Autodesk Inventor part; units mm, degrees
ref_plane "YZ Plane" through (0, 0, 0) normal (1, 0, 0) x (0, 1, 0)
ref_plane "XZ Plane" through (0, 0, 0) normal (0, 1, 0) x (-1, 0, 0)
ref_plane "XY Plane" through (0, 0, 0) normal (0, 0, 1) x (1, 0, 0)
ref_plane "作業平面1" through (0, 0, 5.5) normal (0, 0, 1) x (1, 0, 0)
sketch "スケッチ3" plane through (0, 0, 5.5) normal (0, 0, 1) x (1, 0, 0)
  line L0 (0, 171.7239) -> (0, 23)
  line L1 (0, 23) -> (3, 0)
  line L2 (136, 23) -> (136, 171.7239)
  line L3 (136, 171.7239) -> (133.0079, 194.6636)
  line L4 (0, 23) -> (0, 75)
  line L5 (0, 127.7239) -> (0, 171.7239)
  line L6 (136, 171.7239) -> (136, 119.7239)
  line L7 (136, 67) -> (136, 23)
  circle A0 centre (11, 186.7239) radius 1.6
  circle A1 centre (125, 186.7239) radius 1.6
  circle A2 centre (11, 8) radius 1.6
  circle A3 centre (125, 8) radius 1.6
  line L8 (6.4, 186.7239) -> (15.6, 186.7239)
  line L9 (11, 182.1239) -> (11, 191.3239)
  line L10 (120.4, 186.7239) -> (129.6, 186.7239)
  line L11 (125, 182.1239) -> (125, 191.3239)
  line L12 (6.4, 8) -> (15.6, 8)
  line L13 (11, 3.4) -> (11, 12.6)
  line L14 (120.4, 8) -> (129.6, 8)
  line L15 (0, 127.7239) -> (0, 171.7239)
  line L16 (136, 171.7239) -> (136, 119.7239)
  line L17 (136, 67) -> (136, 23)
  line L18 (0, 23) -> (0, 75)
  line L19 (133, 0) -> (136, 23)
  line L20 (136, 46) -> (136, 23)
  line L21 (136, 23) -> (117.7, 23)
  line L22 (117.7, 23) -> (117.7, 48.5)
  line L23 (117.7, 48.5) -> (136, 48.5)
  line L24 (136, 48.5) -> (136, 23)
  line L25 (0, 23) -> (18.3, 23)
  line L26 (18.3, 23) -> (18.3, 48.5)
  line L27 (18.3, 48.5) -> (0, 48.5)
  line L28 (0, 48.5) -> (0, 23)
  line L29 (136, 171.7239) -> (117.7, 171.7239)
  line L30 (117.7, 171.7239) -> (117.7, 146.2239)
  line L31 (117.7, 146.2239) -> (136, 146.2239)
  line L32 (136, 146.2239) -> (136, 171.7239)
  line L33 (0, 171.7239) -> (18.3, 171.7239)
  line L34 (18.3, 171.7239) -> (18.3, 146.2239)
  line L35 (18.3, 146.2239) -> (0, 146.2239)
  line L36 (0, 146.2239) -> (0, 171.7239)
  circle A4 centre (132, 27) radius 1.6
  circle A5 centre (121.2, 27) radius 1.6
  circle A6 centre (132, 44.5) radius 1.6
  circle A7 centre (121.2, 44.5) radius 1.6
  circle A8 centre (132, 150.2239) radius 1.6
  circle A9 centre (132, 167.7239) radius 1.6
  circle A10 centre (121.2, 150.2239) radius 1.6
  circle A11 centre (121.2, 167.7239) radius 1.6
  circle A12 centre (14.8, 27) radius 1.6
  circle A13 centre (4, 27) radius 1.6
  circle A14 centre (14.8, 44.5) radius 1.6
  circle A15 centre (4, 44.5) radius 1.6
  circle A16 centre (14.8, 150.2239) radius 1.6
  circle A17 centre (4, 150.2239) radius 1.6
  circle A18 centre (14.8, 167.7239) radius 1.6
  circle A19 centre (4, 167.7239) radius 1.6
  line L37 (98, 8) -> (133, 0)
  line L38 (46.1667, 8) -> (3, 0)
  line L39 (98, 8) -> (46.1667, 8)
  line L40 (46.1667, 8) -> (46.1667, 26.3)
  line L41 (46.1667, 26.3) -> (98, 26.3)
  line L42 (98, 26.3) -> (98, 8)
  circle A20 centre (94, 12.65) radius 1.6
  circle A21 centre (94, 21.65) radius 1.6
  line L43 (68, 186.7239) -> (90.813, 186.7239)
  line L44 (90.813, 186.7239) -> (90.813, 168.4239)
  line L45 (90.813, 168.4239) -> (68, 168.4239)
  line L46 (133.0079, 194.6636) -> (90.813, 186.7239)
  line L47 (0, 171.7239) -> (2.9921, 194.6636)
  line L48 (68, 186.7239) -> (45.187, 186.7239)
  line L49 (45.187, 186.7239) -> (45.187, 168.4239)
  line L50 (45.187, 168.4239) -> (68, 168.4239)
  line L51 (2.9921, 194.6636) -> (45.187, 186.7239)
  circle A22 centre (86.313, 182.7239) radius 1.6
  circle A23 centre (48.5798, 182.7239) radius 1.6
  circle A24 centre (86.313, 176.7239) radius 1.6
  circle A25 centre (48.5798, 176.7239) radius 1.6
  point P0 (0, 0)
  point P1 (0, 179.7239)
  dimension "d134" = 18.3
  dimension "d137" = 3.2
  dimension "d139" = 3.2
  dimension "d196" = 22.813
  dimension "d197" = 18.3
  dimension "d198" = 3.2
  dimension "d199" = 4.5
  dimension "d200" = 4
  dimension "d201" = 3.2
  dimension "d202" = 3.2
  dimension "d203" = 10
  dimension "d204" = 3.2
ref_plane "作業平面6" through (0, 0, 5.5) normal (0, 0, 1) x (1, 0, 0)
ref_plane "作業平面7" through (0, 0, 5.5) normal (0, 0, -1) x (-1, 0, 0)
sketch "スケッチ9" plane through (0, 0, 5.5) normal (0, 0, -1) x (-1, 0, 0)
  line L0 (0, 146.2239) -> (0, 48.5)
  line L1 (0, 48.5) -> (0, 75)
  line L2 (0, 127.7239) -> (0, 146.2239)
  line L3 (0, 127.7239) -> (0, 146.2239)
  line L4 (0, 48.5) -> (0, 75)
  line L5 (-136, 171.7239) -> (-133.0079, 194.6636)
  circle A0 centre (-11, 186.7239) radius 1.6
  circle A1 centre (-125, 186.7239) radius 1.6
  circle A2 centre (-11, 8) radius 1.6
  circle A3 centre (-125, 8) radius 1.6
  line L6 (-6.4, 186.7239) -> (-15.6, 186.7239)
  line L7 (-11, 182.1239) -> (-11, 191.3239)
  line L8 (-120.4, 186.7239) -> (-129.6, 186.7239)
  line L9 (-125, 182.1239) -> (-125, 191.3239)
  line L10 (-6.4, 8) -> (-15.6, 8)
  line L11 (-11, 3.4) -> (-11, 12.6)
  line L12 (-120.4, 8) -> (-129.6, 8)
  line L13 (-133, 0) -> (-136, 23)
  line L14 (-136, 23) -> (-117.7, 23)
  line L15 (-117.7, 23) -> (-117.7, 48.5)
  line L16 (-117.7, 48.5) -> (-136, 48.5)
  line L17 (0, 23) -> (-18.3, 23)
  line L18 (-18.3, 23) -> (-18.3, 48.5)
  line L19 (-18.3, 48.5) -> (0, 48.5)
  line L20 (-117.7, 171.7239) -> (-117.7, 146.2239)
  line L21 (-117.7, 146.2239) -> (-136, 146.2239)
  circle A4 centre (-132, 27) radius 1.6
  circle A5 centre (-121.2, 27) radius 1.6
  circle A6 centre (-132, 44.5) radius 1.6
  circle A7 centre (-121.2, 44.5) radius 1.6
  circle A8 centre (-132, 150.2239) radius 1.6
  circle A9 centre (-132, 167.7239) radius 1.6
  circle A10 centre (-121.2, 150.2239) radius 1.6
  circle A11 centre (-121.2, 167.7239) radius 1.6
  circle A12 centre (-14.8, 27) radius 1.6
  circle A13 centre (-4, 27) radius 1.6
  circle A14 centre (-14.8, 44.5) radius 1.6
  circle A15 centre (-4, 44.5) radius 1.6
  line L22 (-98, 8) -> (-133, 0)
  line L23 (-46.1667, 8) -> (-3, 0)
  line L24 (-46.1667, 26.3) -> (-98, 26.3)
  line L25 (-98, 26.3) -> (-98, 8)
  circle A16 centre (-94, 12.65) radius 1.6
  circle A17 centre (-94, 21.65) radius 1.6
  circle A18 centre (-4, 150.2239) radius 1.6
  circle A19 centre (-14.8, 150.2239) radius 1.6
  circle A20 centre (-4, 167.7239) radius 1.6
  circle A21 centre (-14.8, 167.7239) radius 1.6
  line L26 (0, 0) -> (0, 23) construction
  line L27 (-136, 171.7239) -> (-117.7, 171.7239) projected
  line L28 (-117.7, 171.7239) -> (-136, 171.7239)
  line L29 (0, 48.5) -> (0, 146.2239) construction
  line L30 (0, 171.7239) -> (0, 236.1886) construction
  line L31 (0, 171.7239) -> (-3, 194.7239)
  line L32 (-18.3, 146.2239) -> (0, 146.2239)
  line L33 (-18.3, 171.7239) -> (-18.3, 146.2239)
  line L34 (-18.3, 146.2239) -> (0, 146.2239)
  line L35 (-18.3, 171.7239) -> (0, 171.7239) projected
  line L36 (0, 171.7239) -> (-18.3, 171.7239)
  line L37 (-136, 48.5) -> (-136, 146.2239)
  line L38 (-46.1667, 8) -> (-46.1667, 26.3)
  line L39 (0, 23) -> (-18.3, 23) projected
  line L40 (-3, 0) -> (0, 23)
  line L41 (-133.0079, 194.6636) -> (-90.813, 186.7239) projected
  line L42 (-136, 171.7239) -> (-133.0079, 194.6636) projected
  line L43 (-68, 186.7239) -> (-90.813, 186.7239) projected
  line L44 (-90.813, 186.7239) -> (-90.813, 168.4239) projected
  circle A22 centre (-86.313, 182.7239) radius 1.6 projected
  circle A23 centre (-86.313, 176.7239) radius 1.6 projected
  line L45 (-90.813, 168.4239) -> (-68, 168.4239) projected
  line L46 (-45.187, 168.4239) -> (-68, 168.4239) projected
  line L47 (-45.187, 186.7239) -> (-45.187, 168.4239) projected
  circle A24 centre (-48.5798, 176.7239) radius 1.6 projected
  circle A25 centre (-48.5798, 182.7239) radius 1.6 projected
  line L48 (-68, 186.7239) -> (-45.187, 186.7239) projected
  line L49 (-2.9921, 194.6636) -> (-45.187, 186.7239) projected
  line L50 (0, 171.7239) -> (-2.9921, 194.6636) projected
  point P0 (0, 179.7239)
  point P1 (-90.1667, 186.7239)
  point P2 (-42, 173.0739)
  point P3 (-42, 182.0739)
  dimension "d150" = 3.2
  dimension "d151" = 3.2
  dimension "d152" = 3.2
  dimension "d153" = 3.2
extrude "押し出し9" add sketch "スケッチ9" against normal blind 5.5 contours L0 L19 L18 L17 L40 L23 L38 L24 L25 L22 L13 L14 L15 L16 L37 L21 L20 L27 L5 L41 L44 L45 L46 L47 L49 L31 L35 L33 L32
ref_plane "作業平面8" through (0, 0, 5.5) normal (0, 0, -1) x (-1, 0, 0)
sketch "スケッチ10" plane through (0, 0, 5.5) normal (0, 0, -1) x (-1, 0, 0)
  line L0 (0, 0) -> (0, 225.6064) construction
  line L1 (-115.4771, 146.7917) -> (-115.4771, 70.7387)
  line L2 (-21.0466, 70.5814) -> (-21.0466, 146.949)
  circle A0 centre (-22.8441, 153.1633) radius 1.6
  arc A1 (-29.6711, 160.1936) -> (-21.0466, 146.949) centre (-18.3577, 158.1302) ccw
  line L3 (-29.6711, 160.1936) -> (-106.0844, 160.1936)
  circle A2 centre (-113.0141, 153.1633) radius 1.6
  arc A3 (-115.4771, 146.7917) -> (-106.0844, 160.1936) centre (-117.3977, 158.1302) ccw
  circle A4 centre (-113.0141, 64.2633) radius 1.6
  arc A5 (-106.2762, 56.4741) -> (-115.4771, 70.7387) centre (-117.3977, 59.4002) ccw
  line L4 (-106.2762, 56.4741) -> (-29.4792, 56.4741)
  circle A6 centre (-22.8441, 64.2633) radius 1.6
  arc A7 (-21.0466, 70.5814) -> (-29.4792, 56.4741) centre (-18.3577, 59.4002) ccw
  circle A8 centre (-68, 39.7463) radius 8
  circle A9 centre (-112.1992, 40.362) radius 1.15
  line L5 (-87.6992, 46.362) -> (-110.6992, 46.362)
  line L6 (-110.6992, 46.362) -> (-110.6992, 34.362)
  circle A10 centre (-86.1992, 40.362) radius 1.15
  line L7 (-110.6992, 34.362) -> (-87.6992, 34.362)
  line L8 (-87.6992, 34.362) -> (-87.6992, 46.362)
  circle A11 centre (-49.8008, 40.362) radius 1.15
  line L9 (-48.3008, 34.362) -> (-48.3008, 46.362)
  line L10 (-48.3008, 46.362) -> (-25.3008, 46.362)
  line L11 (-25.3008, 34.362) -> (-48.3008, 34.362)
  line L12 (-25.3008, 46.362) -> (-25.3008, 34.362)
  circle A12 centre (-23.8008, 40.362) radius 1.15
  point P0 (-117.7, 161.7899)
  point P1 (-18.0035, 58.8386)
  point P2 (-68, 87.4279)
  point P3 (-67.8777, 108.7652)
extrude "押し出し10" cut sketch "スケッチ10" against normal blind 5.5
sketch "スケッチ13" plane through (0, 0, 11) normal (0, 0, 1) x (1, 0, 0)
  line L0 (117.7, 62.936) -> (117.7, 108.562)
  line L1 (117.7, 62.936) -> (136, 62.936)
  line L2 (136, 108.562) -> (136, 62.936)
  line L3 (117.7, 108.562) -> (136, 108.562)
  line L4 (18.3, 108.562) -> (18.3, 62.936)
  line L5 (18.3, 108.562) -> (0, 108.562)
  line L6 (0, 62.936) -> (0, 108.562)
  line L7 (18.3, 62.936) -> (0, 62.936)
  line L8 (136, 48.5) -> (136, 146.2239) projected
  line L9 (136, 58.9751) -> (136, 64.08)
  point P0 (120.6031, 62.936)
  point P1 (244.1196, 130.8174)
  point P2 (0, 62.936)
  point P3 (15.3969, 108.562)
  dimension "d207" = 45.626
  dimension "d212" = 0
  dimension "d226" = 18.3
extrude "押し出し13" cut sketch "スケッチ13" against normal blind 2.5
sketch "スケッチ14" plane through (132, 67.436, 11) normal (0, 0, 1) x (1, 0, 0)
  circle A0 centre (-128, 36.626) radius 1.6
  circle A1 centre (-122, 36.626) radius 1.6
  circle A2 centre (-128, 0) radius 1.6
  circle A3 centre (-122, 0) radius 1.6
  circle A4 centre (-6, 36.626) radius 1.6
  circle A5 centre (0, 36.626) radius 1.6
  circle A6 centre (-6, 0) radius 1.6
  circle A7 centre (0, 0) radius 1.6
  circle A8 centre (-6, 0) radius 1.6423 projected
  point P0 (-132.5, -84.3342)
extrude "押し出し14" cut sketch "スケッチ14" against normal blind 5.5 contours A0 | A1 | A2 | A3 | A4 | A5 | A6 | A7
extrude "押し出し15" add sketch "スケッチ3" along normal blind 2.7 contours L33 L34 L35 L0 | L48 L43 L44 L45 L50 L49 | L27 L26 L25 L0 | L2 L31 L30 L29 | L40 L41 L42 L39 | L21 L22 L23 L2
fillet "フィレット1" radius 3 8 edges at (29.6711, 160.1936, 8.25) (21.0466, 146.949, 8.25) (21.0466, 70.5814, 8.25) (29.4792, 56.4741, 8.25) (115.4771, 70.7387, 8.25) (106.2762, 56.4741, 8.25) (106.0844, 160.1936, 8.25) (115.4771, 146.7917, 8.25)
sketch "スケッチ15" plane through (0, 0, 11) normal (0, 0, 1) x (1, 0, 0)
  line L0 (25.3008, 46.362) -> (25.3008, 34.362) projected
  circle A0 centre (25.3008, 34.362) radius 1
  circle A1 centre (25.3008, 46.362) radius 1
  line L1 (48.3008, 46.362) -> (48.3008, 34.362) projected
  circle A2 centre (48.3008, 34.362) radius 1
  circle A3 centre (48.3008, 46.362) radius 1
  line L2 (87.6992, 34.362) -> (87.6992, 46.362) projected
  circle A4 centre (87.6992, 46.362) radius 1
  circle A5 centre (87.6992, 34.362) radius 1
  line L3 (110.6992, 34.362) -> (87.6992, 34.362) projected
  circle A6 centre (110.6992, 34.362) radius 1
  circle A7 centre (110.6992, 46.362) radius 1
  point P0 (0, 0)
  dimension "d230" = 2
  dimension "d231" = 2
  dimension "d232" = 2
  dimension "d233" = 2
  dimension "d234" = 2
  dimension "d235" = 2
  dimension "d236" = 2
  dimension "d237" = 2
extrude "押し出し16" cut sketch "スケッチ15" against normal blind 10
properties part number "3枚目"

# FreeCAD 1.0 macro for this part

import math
import FreeCAD as App
import Part
import Sketcher

V = App.Vector
Q = App.Units.Quantity


def edges_at(feature, points):
    """Names of the edges that pass closest to the given points."""
    edges = feature.Shape.Edges
    near = lambda p: min(range(len(edges)), key=lambda i: edges[i].distToShape(Part.Vertex(*p))[0])
    return sorted({f"Edge{near(p) + 1}" for p in points})

doc = App.newDocument("Part")
body = doc.addObject("PartDesign::Body", "Body")

# Sketch on XY plane
sketch1 = body.newObject("Sketcher::SketchObject", "Sketch")
sketch1.AttachmentSupport = (doc.getObject("XY_Plane"), [""])
sketch1.MapMode = "FlatFace"
sketch1.AttachmentOffset = App.Placement(V(0, 0, 5.5), App.Rotation())
sketch1.addGeometry([
    Part.LineSegment(V(0, 48.5, 0), V(0, 146.2, 0)),  # 0
    Part.LineSegment(V(0, 146.2, 0), V(18.3, 146.2, 0)),  # 1
    Part.LineSegment(V(18.3, 146.2, 0), V(18.3, 171.7, 0)),  # 2
    Part.LineSegment(V(18.3, 171.7, 0), V(0, 171.7, 0)),  # 3
    Part.LineSegment(V(0, 171.7, 0), V(3, 194.7, 0)),  # 4
    Part.LineSegment(V(3, 194.7, 0), V(45.2, 186.7, 0)),  # 5
    Part.LineSegment(V(45.2, 186.7, 0), V(45.2, 168.4, 0)),  # 6
    Part.LineSegment(V(45.2, 168.4, 0), V(90.8, 168.4, 0)),  # 7
    Part.LineSegment(V(90.8, 168.4, 0), V(90.8, 186.7, 0)),  # 8
    Part.LineSegment(V(90.8, 186.7, 0), V(133, 194.7, 0)),  # 9
    Part.LineSegment(V(133, 194.7, 0), V(136, 171.7, 0)),  # 10
    Part.LineSegment(V(136, 171.7, 0), V(117.7, 171.7, 0)),  # 11
    Part.LineSegment(V(117.7, 171.7, 0), V(117.7, 146.2, 0)),  # 12
    Part.LineSegment(V(117.7, 146.2, 0), V(136, 146.2, 0)),  # 13
    Part.LineSegment(V(136, 146.2, 0), V(136, 48.5, 0)),  # 14
    Part.LineSegment(V(136, 48.5, 0), V(117.7, 48.5, 0)),  # 15
    Part.LineSegment(V(117.7, 48.5, 0), V(117.7, 23, 0)),  # 16
    Part.LineSegment(V(117.7, 23, 0), V(136, 23, 0)),  # 17
    Part.LineSegment(V(136, 23, 0), V(133, 0, 0)),  # 18
    Part.LineSegment(V(133, 0, 0), V(98, 8, 0)),  # 19
    Part.LineSegment(V(98, 8, 0), V(98, 26.3, 0)),  # 20
    Part.LineSegment(V(98, 26.3, 0), V(46.2, 26.3, 0)),  # 21
    Part.LineSegment(V(46.2, 26.3, 0), V(46.2, 8, 0)),  # 22
    Part.LineSegment(V(46.2, 8, 0), V(3, 0, 0)),  # 23
    Part.LineSegment(V(3, 0, 0), V(0, 23, 0)),  # 24
    Part.LineSegment(V(0, 23, 0), V(18.3, 23, 0)),  # 25
    Part.LineSegment(V(18.3, 23, 0), V(18.3, 48.5, 0)),  # 26
    Part.LineSegment(V(18.3, 48.5, 0), V(0, 48.5, 0)),  # 27
    Part.Circle(V(125, 8, 0), V(0, 0, 1), 1.6),  # 28
    Part.Circle(V(11, 8, 0), V(0, 0, 1), 1.6),  # 29
    Part.Circle(V(125, 186.7, 0), V(0, 0, 1), 1.6),  # 30
    Part.Circle(V(11, 186.7, 0), V(0, 0, 1), 1.6),  # 31
], False)
sketch1.addConstraint([
    Sketcher.Constraint("Coincident", 0, 2, 1, 1),
    Sketcher.Constraint("Coincident", 1, 2, 2, 1),
    Sketcher.Constraint("Coincident", 2, 2, 3, 1),
    Sketcher.Constraint("Coincident", 3, 2, 4, 1),
    Sketcher.Constraint("Coincident", 4, 2, 5, 1),
    Sketcher.Constraint("Coincident", 5, 2, 6, 1),
    Sketcher.Constraint("Coincident", 6, 2, 7, 1),
    Sketcher.Constraint("Coincident", 7, 2, 8, 1),
    Sketcher.Constraint("Coincident", 8, 2, 9, 1),
    Sketcher.Constraint("Coincident", 9, 2, 10, 1),
    Sketcher.Constraint("Coincident", 10, 2, 11, 1),
    Sketcher.Constraint("Coincident", 11, 2, 12, 1),
    Sketcher.Constraint("Coincident", 12, 2, 13, 1),
    Sketcher.Constraint("Coincident", 13, 2, 14, 1),
    Sketcher.Constraint("Coincident", 14, 2, 15, 1),
    Sketcher.Constraint("Coincident", 15, 2, 16, 1),
    Sketcher.Constraint("Coincident", 16, 2, 17, 1),
    Sketcher.Constraint("Coincident", 17, 2, 18, 1),
    Sketcher.Constraint("Coincident", 18, 2, 19, 1),
    Sketcher.Constraint("Coincident", 19, 2, 20, 1),
    Sketcher.Constraint("Coincident", 20, 2, 21, 1),
    Sketcher.Constraint("Coincident", 21, 2, 22, 1),
    Sketcher.Constraint("Coincident", 22, 2, 23, 1),
    Sketcher.Constraint("Coincident", 23, 2, 24, 1),
    Sketcher.Constraint("Coincident", 24, 2, 25, 1),
    Sketcher.Constraint("Coincident", 25, 2, 26, 1),
    Sketcher.Constraint("Coincident", 26, 2, 27, 1),
    Sketcher.Constraint("Coincident", 27, 2, 0, 1),
    Sketcher.Constraint("Vertical", 0),
    Sketcher.Constraint("Horizontal", 1),
    Sketcher.Constraint("Vertical", 2),
    Sketcher.Constraint("Horizontal", 3),
    Sketcher.Constraint("Vertical", 6),
    Sketcher.Constraint("Horizontal", 7),
    Sketcher.Constraint("Vertical", 8),
    Sketcher.Constraint("Horizontal", 11),
    Sketcher.Constraint("Vertical", 12),
    Sketcher.Constraint("Horizontal", 13),
    Sketcher.Constraint("Vertical", 14),
    Sketcher.Constraint("Horizontal", 15),
    Sketcher.Constraint("Vertical", 16),
    Sketcher.Constraint("Horizontal", 17),
    Sketcher.Constraint("Vertical", 20),
    Sketcher.Constraint("Horizontal", 21),
    Sketcher.Constraint("Vertical", 22),
    Sketcher.Constraint("Horizontal", 25),
    Sketcher.Constraint("Vertical", 26),
    Sketcher.Constraint("Horizontal", 27),
    Sketcher.Constraint("Equal", 28, 29),
    Sketcher.Constraint("Equal", 29, 30),
    Sketcher.Constraint("Equal", 30, 31),
    Sketcher.Constraint("PointOnObject", 0, 2, -2),
    Sketcher.Constraint("PointOnObject", 3, 2, -2),
    Sketcher.Constraint("PointOnObject", 18, 2, -1),
    Sketcher.Constraint("PointOnObject", 23, 2, -1),
    Sketcher.Constraint("PointOnObject", 24, 2, -2),
    Sketcher.Constraint("Parallel", 4, 18),
    Sketcher.Constraint("Parallel", 10, 24),
    Sketcher.Constraint("Horizontal", 28, 3, 29, 3),
    Sketcher.Constraint("Horizontal", 30, 3, 31, 3),
    Sketcher.Constraint("Horizontal", 31, 3, 5, 2),
    Sketcher.Constraint("Horizontal", 5, 2, 8, 2),
    Sketcher.Constraint("Horizontal", 4, 2, 9, 2),
    Sketcher.Constraint("Horizontal", 3, 2, 10, 2),
    Sketcher.Constraint("Horizontal", 1, 2, 12, 2),
    Sketcher.Constraint("Horizontal", 29, 3, 19, 2),
    Sketcher.Constraint("Horizontal", 19, 2, 22, 2),
    Sketcher.Constraint("Horizontal", 17, 2, 24, 2),
    Sketcher.Constraint("Horizontal", 15, 2, 26, 2),
    Sketcher.Constraint("Vertical", 28, 3, 30, 3),
    Sketcher.Constraint("Vertical", 29, 3, 31, 3),
    Sketcher.Constraint("Vertical", 10, 2, 13, 2),
    Sketcher.Constraint("Vertical", 12, 2, 15, 2),
    Sketcher.Constraint("Vertical", 14, 2, 17, 2),
    Sketcher.Constraint("Vertical", 2, 2, 25, 2),
    Sketcher.Constraint("Equal", 3, 11),
    Sketcher.Constraint("Equal", 27, 6),
    Sketcher.Constraint("Equal", 12, 16),
    Sketcher.Constraint("Equal", 8, 20),
    Sketcher.Constraint("Equal", 5, 9),
    Sketcher.Constraint("Equal", 4, 10),
    Sketcher.Constraint("Diameter", 28, 3.2),
    Sketcher.Constraint("DistanceX", 1, 1, 1, 2, 18.3),
    Sketcher.Constraint("DistanceY", 2, 1, 2, 2, 25.5),
    Sketcher.Constraint("DistanceX", -1, 1, 28, 3, 125.0),
    Sketcher.Constraint("DistanceY", -1, 1, 28, 3, 8.0),
    Sketcher.Constraint("DistanceX", -1, 1, 29, 3, 11.0),
    Sketcher.Constraint("DistanceX", -1, 1, 10, 2, 136.0),
    Sketcher.Constraint("DistanceY", -1, 1, 16, 2, 23.0),
    Sketcher.Constraint("DistanceX", -1, 1, 18, 2, 133.0),
    Sketcher.Constraint("DistanceX", -1, 1, 19, 2, 98.0),
    Sketcher.Constraint("Angle", 23, Q("-169.5006 deg")),
    Sketcher.Constraint("DistanceY", 2, 2, 31, 3, 15.0),
    Sketcher.Constraint("DistanceX", 7, 1, 7, 2, 45.626),
    Sketcher.Constraint("DistanceY", 0, 1, 0, 2, 97.724),
    Sketcher.Constraint("Distance", 4, 23.134),
])
pad1 = body.newObject("PartDesign::Pad", "Pad")
pad1.Profile = sketch1
pad1.Length = 5.5

# Sketch on XY plane
sketch2 = body.newObject("Sketcher::SketchObject", "Sketch001")
sketch2.AttachmentSupport = (doc.getObject("XY_Plane"), [""])
sketch2.MapMode = "FlatFace"
sketch2.AttachmentOffset = App.Placement(V(0, 0, 5.5), App.Rotation())
sketch2.addGeometry([
    Part.ArcOfCircle(Part.Circle(V(117.4, 158.1, 0), V(0, 0, 1), 11.5), math.radians(170), math.radians(260)),  # 0
    Part.LineSegment(V(115.5, 146.8, 0), V(115.5, 70.7, 0)),  # 1
    Part.ArcOfCircle(Part.Circle(V(117.4, 59.4, 0), V(0, 0, 1), 11.5), math.radians(100), math.radians(195)),  # 2
    Part.LineSegment(V(106.3, 56.5, 0), V(29.5, 56.5, 0)),  # 3
    Part.ArcOfCircle(Part.Circle(V(18.4, 59.4, 0), V(0, 0, 1), 11.5), math.radians(-15), math.radians(76)),  # 4
    Part.LineSegment(V(21, 70.6, 0), V(21, 146.9, 0)),  # 5
    Part.ArcOfCircle(Part.Circle(V(18.4, 158.1, 0), V(0, 0, 1), 11.5), math.radians(-76), math.radians(10)),  # 6
    Part.LineSegment(V(29.7, 160.2, 0), V(106.1, 160.2, 0)),  # 7
    Part.Circle(V(22.8, 153.2, 0), V(0, 0, 1), 1.6),  # 8
    Part.Circle(V(113, 153.2, 0), V(0, 0, 1), 1.6),  # 9
    Part.Circle(V(113, 64.3, 0), V(0, 0, 1), 1.6),  # 10
    Part.Circle(V(22.8, 64.3, 0), V(0, 0, 1), 1.6),  # 11
    Part.Circle(V(68, 39.7, 0), V(0, 0, 1), 8),  # 12
    Part.Circle(V(112.2, 40.4, 0), V(0, 0, 1), 1.1),  # 13
    Part.LineSegment(V(87.7, 34.4, 0), V(87.7, 46.4, 0)),  # 14
    Part.LineSegment(V(87.7, 46.4, 0), V(110.7, 46.4, 0)),  # 15
    Part.LineSegment(V(110.7, 46.4, 0), V(110.7, 34.4, 0)),  # 16
    Part.LineSegment(V(110.7, 34.4, 0), V(87.7, 34.4, 0)),  # 17
    Part.Circle(V(86.2, 40.4, 0), V(0, 0, 1), 1.1),  # 18
    Part.Circle(V(49.8, 40.4, 0), V(0, 0, 1), 1.1),  # 19
    Part.LineSegment(V(48.3, 46.4, 0), V(48.3, 34.4, 0)),  # 20
    Part.LineSegment(V(48.3, 34.4, 0), V(25.3, 34.4, 0)),  # 21
    Part.LineSegment(V(25.3, 34.4, 0), V(25.3, 46.4, 0)),  # 22
    Part.LineSegment(V(25.3, 46.4, 0), V(48.3, 46.4, 0)),  # 23
    Part.Circle(V(23.8, 40.4, 0), V(0, 0, 1), 1.1),  # 24
], False)
sketch2.addConstraint([
    Sketcher.Constraint("Coincident", 0, 2, 1, 1),
    Sketcher.Constraint("Coincident", 1, 2, 2, 1),
    Sketcher.Constraint("Coincident", 2, 2, 3, 1),
    Sketcher.Constraint("Coincident", 3, 2, 4, 1),
    Sketcher.Constraint("Coincident", 4, 2, 5, 1),
    Sketcher.Constraint("Coincident", 5, 2, 6, 1),
    Sketcher.Constraint("Coincident", 6, 2, 7, 1),
    Sketcher.Constraint("Coincident", 7, 2, 0, 1),
    Sketcher.Constraint("Coincident", 14, 2, 15, 1),
    Sketcher.Constraint("Coincident", 15, 2, 16, 1),
    Sketcher.Constraint("Coincident", 16, 2, 17, 1),
    Sketcher.Constraint("Coincident", 17, 2, 14, 1),
    Sketcher.Constraint("Coincident", 20, 2, 21, 1),
    Sketcher.Constraint("Coincident", 21, 2, 22, 1),
    Sketcher.Constraint("Coincident", 22, 2, 23, 1),
    Sketcher.Constraint("Coincident", 23, 2, 20, 1),
    Sketcher.Constraint("Vertical", 1),
    Sketcher.Constraint("Horizontal", 3),
    Sketcher.Constraint("Vertical", 5),
    Sketcher.Constraint("Horizontal", 7),
    Sketcher.Constraint("Vertical", 14),
    Sketcher.Constraint("Horizontal", 15),
    Sketcher.Constraint("Vertical", 16),
    Sketcher.Constraint("Horizontal", 17),
    Sketcher.Constraint("Vertical", 20),
    Sketcher.Constraint("Horizontal", 21),
    Sketcher.Constraint("Vertical", 22),
    Sketcher.Constraint("Horizontal", 23),
    Sketcher.Constraint("Equal", 0, 2),
    Sketcher.Constraint("Equal", 2, 4),
    Sketcher.Constraint("Equal", 4, 6),
    Sketcher.Constraint("Equal", 8, 9),
    Sketcher.Constraint("Equal", 9, 10),
    Sketcher.Constraint("Equal", 10, 11),
    Sketcher.Constraint("Equal", 13, 18),
    Sketcher.Constraint("Equal", 18, 19),
    Sketcher.Constraint("Equal", 19, 24),
    Sketcher.Constraint("Horizontal", 2, 3, 4, 3),
    Sketcher.Constraint("Horizontal", 0, 3, 6, 3),
    Sketcher.Constraint("Horizontal", 8, 3, 9, 3),
    Sketcher.Constraint("Horizontal", 10, 3, 11, 3),
    Sketcher.Constraint("Horizontal", 13, 3, 18, 3),
    Sketcher.Constraint("Horizontal", 18, 3, 19, 3),
    Sketcher.Constraint("Horizontal", 19, 3, 24, 3),
    Sketcher.Constraint("Horizontal", 17, 2, 20, 2),
    Sketcher.Constraint("Horizontal", 15, 2, 22, 2),
    Sketcher.Constraint("Vertical", 0, 3, 2, 3),
    Sketcher.Constraint("Vertical", 4, 3, 6, 3),
    Sketcher.Constraint("Vertical", 9, 3, 10, 3),
    Sketcher.Constraint("Vertical", 8, 3, 11, 3),
    Sketcher.Constraint("Equal", 17, 21),
    Sketcher.Constraint("Diameter", 12, 16.0),
    Sketcher.Constraint("Diameter", 8, 3.2),
    Sketcher.Constraint("Diameter", 13, 2.3),
    Sketcher.Constraint("Radius", 0, 11.5),
    Sketcher.Constraint("DistanceX", 15, 1, 15, 2, 23.0),
    Sketcher.Constraint("DistanceY", 14, 1, 14, 2, 12.0),
    Sketcher.Constraint("DistanceX", -1, 1, 12, 3, 68.0),
    Sketcher.Constraint("DistanceX", 18, 3, 13, 3, 26.0),
    Sketcher.Constraint("DistanceX", 24, 3, 19, 3, 26.0),
    Sketcher.Constraint("DistanceY", 18, 3, 14, 2, 6.0),
    Sketcher.Constraint("DistanceY", 10, 3, 9, 3, 88.9),
    Sketcher.Constraint("DistanceX", 18, 3, 14, 2, 1.5),
    Sketcher.Constraint("DistanceX", 20, 2, 19, 3, 1.5),
    Sketcher.Constraint("DistanceX", 3, 2, 3, 1, 76.797),
    Sketcher.Constraint("DistanceY", 1, 2, 1, 1, 76.053),
    Sketcher.Constraint("DistanceY", 2, 3, 0, 3, 98.73),
    Sketcher.Constraint("DistanceX", 4, 3, 2, 3, 99.04),
    Sketcher.Constraint("DistanceX", 8, 3, 9, 3, 90.17),
    Sketcher.Constraint("DistanceX", 7, 1, 7, 2, 76.4133),
    Sketcher.Constraint("DistanceY", 5, 1, 5, 2, 76.3676),
    Sketcher.Constraint("DistanceX", -1, 1, 8, 3, 22.844),
    Sketcher.Constraint("DistanceY", -1, 1, 13, 3, 40.362),
    Sketcher.Constraint("DistanceX", -1, 1, 0, 2, 115.477),
    Sketcher.Constraint("DistanceY", -1, 1, 2, 2, 56.474),
    Sketcher.Constraint("DistanceY", 8, 3, 6, 3, 4.967),
    Sketcher.Constraint("DistanceY", 12, 3, 10, 3, 24.517),
    Sketcher.Constraint("DistanceX", 13, 3, 10, 3, 0.815),
    Sketcher.Constraint("DistanceX", 4, 3, 19, 3, 31.443),
])
pocket1 = body.newObject("PartDesign::Pocket", "Pocket")
pocket1.Profile = sketch2
pocket1.Length = 5.5
pocket1.Reversed = True

# Sketch on XY plane
sketch3 = body.newObject("Sketcher::SketchObject", "Sketch002")
sketch3.AttachmentSupport = (doc.getObject("XY_Plane"), [""])
sketch3.MapMode = "FlatFace"
sketch3.AttachmentOffset = App.Placement(V(0, 0, 11), App.Rotation())
sketch3.addGeometry([
    Part.LineSegment(V(118, 109, 0), V(118, 63, 0)),  # 0
    Part.LineSegment(V(118, 63, 0), V(136, 63, 0)),  # 1
    Part.LineSegment(V(136, 63, 0), V(136, 109, 0)),  # 2
    Part.LineSegment(V(136, 109, 0), V(118, 109, 0)),  # 3
    Part.LineSegment(V(18, 63, 0), V(18, 109, 0)),  # 4
    Part.LineSegment(V(18, 109, 0), V(0, 109, 0)),  # 5
    Part.LineSegment(V(0, 109, 0), V(0, 63, 0)),  # 6
    Part.LineSegment(V(0, 63, 0), V(18, 63, 0)),  # 7
], False)
sketch3.addConstraint([
    Sketcher.Constraint("Coincident", 0, 2, 1, 1),
    Sketcher.Constraint("Coincident", 1, 2, 2, 1),
    Sketcher.Constraint("Coincident", 2, 2, 3, 1),
    Sketcher.Constraint("Coincident", 3, 2, 0, 1),
    Sketcher.Constraint("Coincident", 4, 2, 5, 1),
    Sketcher.Constraint("Coincident", 5, 2, 6, 1),
    Sketcher.Constraint("Coincident", 6, 2, 7, 1),
    Sketcher.Constraint("Coincident", 7, 2, 4, 1),
    Sketcher.Constraint("Vertical", 0),
    Sketcher.Constraint("Horizontal", 1),
    Sketcher.Constraint("Vertical", 2),
    Sketcher.Constraint("Horizontal", 3),
    Sketcher.Constraint("Vertical", 4),
    Sketcher.Constraint("Horizontal", 5),
    Sketcher.Constraint("Vertical", 6),
    Sketcher.Constraint("Horizontal", 7),
    Sketcher.Constraint("PointOnObject", 5, 2, -2),
    Sketcher.Constraint("Horizontal", 3, 2, 4, 2),
    Sketcher.Constraint("Horizontal", 1, 2, 6, 2),
    Sketcher.Constraint("Equal", 3, 5),
    Sketcher.Constraint("DistanceX", 1, 1, 1, 2, 18.3),
    Sketcher.Constraint("DistanceY", 0, 2, 0, 1, 45.626),
    Sketcher.Constraint("DistanceX", -1, 1, 1, 2, 136.0),
    Sketcher.Constraint("DistanceY", -1, 1, 0, 2, 62.936),
])
pocket2 = body.newObject("PartDesign::Pocket", "Pocket001")
pocket2.Profile = sketch3
pocket2.Length = 2.5

# Sketch on XY plane
sketch4 = body.newObject("Sketcher::SketchObject", "Sketch003")
sketch4.AttachmentSupport = (doc.getObject("XY_Plane"), [""])
sketch4.MapMode = "FlatFace"
sketch4.AttachmentOffset = App.Placement(V(0, 0, 11), App.Rotation())
sketch4.addGeometry([
    Part.Circle(V(4, 104.1, 0), V(0, 0, 1), 1.6),  # 0
    Part.Circle(V(10, 104.1, 0), V(0, 0, 1), 1.6),  # 1
    Part.Circle(V(4, 67.4, 0), V(0, 0, 1), 1.6),  # 2
    Part.Circle(V(10, 67.4, 0), V(0, 0, 1), 1.6),  # 3
    Part.Circle(V(126, 104.1, 0), V(0, 0, 1), 1.6),  # 4
    Part.Circle(V(132, 104.1, 0), V(0, 0, 1), 1.6),  # 5
    Part.Circle(V(126, 67.4, 0), V(0, 0, 1), 1.6),  # 6
    Part.Circle(V(132, 67.4, 0), V(0, 0, 1), 1.6),  # 7
], False)
sketch4.addConstraint([
    Sketcher.Constraint("Equal", 0, 1),
    Sketcher.Constraint("Equal", 1, 2),
    Sketcher.Constraint("Equal", 2, 3),
    Sketcher.Constraint("Equal", 3, 4),
    Sketcher.Constraint("Equal", 4, 5),
    Sketcher.Constraint("Equal", 5, 6),
    Sketcher.Constraint("Equal", 6, 7),
    Sketcher.Constraint("Horizontal", 0, 3, 1, 3),
    Sketcher.Constraint("Horizontal", 2, 3, 3, 3),
    Sketcher.Constraint("Horizontal", 1, 3, 4, 3),
    Sketcher.Constraint("Horizontal", 4, 3, 5, 3),
    Sketcher.Constraint("Horizontal", 3, 3, 6, 3),
    Sketcher.Constraint("Horizontal", 6, 3, 7, 3),
    Sketcher.Constraint("Vertical", 0, 3, 2, 3),
    Sketcher.Constraint("Vertical", 1, 3, 3, 3),
    Sketcher.Constraint("Vertical", 4, 3, 6, 3),
    Sketcher.Constraint("Vertical", 5, 3, 7, 3),
    Sketcher.Constraint("Diameter", 0, 3.2),
    Sketcher.Constraint("DistanceX", -1, 1, 0, 3, 4.0),
    Sketcher.Constraint("DistanceX", -1, 1, 1, 3, 10.0),
    Sketcher.Constraint("DistanceX", -1, 1, 4, 3, 126.0),
    Sketcher.Constraint("DistanceX", -1, 1, 5, 3, 132.0),
    Sketcher.Constraint("DistanceY", -1, 1, 0, 3, 104.062),
    Sketcher.Constraint("DistanceY", -1, 1, 2, 3, 67.436),
])
pocket3 = body.newObject("PartDesign::Pocket", "Pocket002")
pocket3.Profile = sketch4
pocket3.Length = 5.5

# Sketch on XY plane
sketch5 = body.newObject("Sketcher::SketchObject", "Sketch004")
sketch5.AttachmentSupport = (doc.getObject("XY_Plane"), [""])
sketch5.MapMode = "FlatFace"
sketch5.AttachmentOffset = App.Placement(V(0, 0, 5.5), App.Rotation())
sketch5.addGeometry([
    Part.LineSegment(V(18.3, 171.7, 0), V(0, 171.7, 0)),  # 0
    Part.LineSegment(V(0, 171.7, 0), V(0, 146.2, 0)),  # 1
    Part.LineSegment(V(0, 146.2, 0), V(18.3, 146.2, 0)),  # 2
    Part.LineSegment(V(18.3, 146.2, 0), V(18.3, 171.7, 0)),  # 3
    Part.Circle(V(4, 150.2, 0), V(0, 0, 1), 1.6),  # 4
    Part.Circle(V(14.8, 150.2, 0), V(0, 0, 1), 1.6),  # 5
    Part.Circle(V(4, 167.7, 0), V(0, 0, 1), 1.6),  # 6
    Part.Circle(V(14.8, 167.7, 0), V(0, 0, 1), 1.6),  # 7
    Part.LineSegment(V(90.8, 186.7, 0), V(45.2, 186.7, 0)),  # 8
    Part.LineSegment(V(45.2, 186.7, 0), V(45.2, 168.4, 0)),  # 9
    Part.LineSegment(V(45.2, 168.4, 0), V(90.8, 168.4, 0)),  # 10
    Part.LineSegment(V(90.8, 168.4, 0), V(90.8, 186.7, 0)),  # 11
    Part.Circle(V(48.6, 176.7, 0), V(0, 0, 1), 1.6),  # 12
    Part.Circle(V(48.6, 182.7, 0), V(0, 0, 1), 1.6),  # 13
    Part.Circle(V(86.3, 176.7, 0), V(0, 0, 1), 1.6),  # 14
    Part.Circle(V(86.3, 182.7, 0), V(0, 0, 1), 1.6),  # 15
    Part.LineSegment(V(18.3, 48.5, 0), V(0, 48.5, 0)),  # 16
    Part.LineSegment(V(0, 48.5, 0), V(0, 23, 0)),  # 17
    Part.LineSegment(V(0, 23, 0), V(18.3, 23, 0)),  # 18
    Part.LineSegment(V(18.3, 23, 0), V(18.3, 48.5, 0)),  # 19
    Part.Circle(V(4, 27, 0), V(0, 0, 1), 1.6),  # 20
    Part.Circle(V(14.8, 27, 0), V(0, 0, 1), 1.6),  # 21
    Part.Circle(V(4, 44.5, 0), V(0, 0, 1), 1.6),  # 22
    Part.Circle(V(14.8, 44.5, 0), V(0, 0, 1), 1.6),  # 23
    Part.LineSegment(V(136, 146.2, 0), V(136, 171.7, 0)),  # 24
    Part.LineSegment(V(136, 171.7, 0), V(117.7, 171.7, 0)),  # 25
    Part.LineSegment(V(117.7, 171.7, 0), V(117.7, 146.2, 0)),  # 26
    Part.LineSegment(V(117.7, 146.2, 0), V(136, 146.2, 0)),  # 27
    Part.Circle(V(121.2, 150.2, 0), V(0, 0, 1), 1.6),  # 28
    Part.Circle(V(132, 150.2, 0), V(0, 0, 1), 1.6),  # 29
    Part.Circle(V(121.2, 167.7, 0), V(0, 0, 1), 1.6),  # 30
    Part.Circle(V(132, 167.7, 0), V(0, 0, 1), 1.6),  # 31
    Part.LineSegment(V(46.2, 26.3, 0), V(46.2, 8, 0)),  # 32
    Part.LineSegment(V(46.2, 8, 0), V(98, 8, 0)),  # 33
    Part.LineSegment(V(98, 8, 0), V(98, 26.3, 0)),  # 34
    Part.LineSegment(V(98, 26.3, 0), V(46.2, 26.3, 0)),  # 35
    Part.Circle(V(94, 12.7, 0), V(0, 0, 1), 1.6),  # 36
    Part.Circle(V(94, 21.6, 0), V(0, 0, 1), 1.6),  # 37
    Part.LineSegment(V(117.7, 23, 0), V(136, 23, 0)),  # 38
    Part.LineSegment(V(136, 23, 0), V(136, 48.5, 0)),  # 39
    Part.LineSegment(V(136, 48.5, 0), V(117.7, 48.5, 0)),  # 40
    Part.LineSegment(V(117.7, 48.5, 0), V(117.7, 23, 0)),  # 41
    Part.Circle(V(121.2, 27, 0), V(0, 0, 1), 1.6),  # 42
    Part.Circle(V(132, 27, 0), V(0, 0, 1), 1.6),  # 43
    Part.Circle(V(121.2, 44.5, 0), V(0, 0, 1), 1.6),  # 44
    Part.Circle(V(132, 44.5, 0), V(0, 0, 1), 1.6),  # 45
], False)
sketch5.addConstraint([
    Sketcher.Constraint("Coincident", 0, 2, 1, 1),
    Sketcher.Constraint("Coincident", 1, 2, 2, 1),
    Sketcher.Constraint("Coincident", 2, 2, 3, 1),
    Sketcher.Constraint("Coincident", 3, 2, 0, 1),
    Sketcher.Constraint("Coincident", 8, 2, 9, 1),
    Sketcher.Constraint("Coincident", 9, 2, 10, 1),
    Sketcher.Constraint("Coincident", 10, 2, 11, 1),
    Sketcher.Constraint("Coincident", 11, 2, 8, 1),
    Sketcher.Constraint("Coincident", 16, 2, 17, 1),
    Sketcher.Constraint("Coincident", 17, 2, 18, 1),
    Sketcher.Constraint("Coincident", 18, 2, 19, 1),
    Sketcher.Constraint("Coincident", 19, 2, 16, 1),
    Sketcher.Constraint("Coincident", 24, 2, 25, 1),
    Sketcher.Constraint("Coincident", 25, 2, 26, 1),
    Sketcher.Constraint("Coincident", 26, 2, 27, 1),
    Sketcher.Constraint("Coincident", 27, 2, 24, 1),
    Sketcher.Constraint("Coincident", 32, 2, 33, 1),
    Sketcher.Constraint("Coincident", 33, 2, 34, 1),
    Sketcher.Constraint("Coincident", 34, 2, 35, 1),
    Sketcher.Constraint("Coincident", 35, 2, 32, 1),
    Sketcher.Constraint("Coincident", 38, 2, 39, 1),
    Sketcher.Constraint("Coincident", 39, 2, 40, 1),
    Sketcher.Constraint("Coincident", 40, 2, 41, 1),
    Sketcher.Constraint("Coincident", 41, 2, 38, 1),
    Sketcher.Constraint("Horizontal", 0),
    Sketcher.Constraint("Vertical", 1),
    Sketcher.Constraint("Horizontal", 2),
    Sketcher.Constraint("Vertical", 3),
    Sketcher.Constraint("Horizontal", 8),
    Sketcher.Constraint("Vertical", 9),
    Sketcher.Constraint("Horizontal", 10),
    Sketcher.Constraint("Vertical", 11),
    Sketcher.Constraint("Horizontal", 16),
    Sketcher.Constraint("Vertical", 17),
    Sketcher.Constraint("Horizontal", 18),
    Sketcher.Constraint("Vertical", 19),
    Sketcher.Constraint("Vertical", 24),
    Sketcher.Constraint("Horizontal", 25),
    Sketcher.Constraint("Vertical", 26),
    Sketcher.Constraint("Horizontal", 27),
    Sketcher.Constraint("Vertical", 32),
    Sketcher.Constraint("Horizontal", 33),
    Sketcher.Constraint("Vertical", 34),
    Sketcher.Constraint("Horizontal", 35),
    Sketcher.Constraint("Horizontal", 38),
    Sketcher.Constraint("Vertical", 39),
    Sketcher.Constraint("Horizontal", 40),
    Sketcher.Constraint("Vertical", 41),
    Sketcher.Constraint("Equal", 4, 5),
    Sketcher.Constraint("Equal", 5, 6),
    Sketcher.Constraint("Equal", 6, 7),
    Sketcher.Constraint("Equal", 7, 12),
    Sketcher.Constraint("Equal", 12, 13),
    Sketcher.Constraint("Equal", 13, 14),
    Sketcher.Constraint("Equal", 14, 15),
    Sketcher.Constraint("Equal", 15, 20),
    Sketcher.Constraint("Equal", 20, 21),
    Sketcher.Constraint("Equal", 21, 22),
    Sketcher.Constraint("Equal", 22, 23),
    Sketcher.Constraint("Equal", 23, 28),
    Sketcher.Constraint("Equal", 28, 29),
    Sketcher.Constraint("Equal", 29, 30),
    Sketcher.Constraint("Equal", 30, 31),
    Sketcher.Constraint("Equal", 31, 36),
    Sketcher.Constraint("Equal", 36, 37),
    Sketcher.Constraint("Equal", 37, 42),
    Sketcher.Constraint("Equal", 42, 43),
    Sketcher.Constraint("Equal", 43, 44),
    Sketcher.Constraint("Equal", 44, 45),
    Sketcher.Constraint("PointOnObject", 0, 2, -2),
    Sketcher.Constraint("PointOnObject", 16, 2, -2),
    Sketcher.Constraint("Horizontal", 4, 3, 5, 3),
    Sketcher.Constraint("Horizontal", 6, 3, 7, 3),
    Sketcher.Constraint("Horizontal", 12, 3, 14, 3),
    Sketcher.Constraint("Horizontal", 13, 3, 15, 3),
    Sketcher.Constraint("Horizontal", 20, 3, 21, 3),
    Sketcher.Constraint("Horizontal", 22, 3, 23, 3),
    Sketcher.Constraint("Horizontal", 5, 3, 28, 3),
    Sketcher.Constraint("Horizontal", 28, 3, 29, 3),
    Sketcher.Constraint("Horizontal", 7, 3, 30, 3),
    Sketcher.Constraint("Horizontal", 30, 3, 31, 3),
    Sketcher.Constraint("Horizontal", 21, 3, 42, 3),
    Sketcher.Constraint("Horizontal", 42, 3, 43, 3),
    Sketcher.Constraint("Horizontal", 23, 3, 44, 3),
    Sketcher.Constraint("Horizontal", 44, 3, 45, 3),
    Sketcher.Constraint("Horizontal", 3, 2, 24, 2),
    Sketcher.Constraint("Horizontal", 2, 2, 26, 2),
    Sketcher.Constraint("Horizontal", 18, 2, 38, 2),
    Sketcher.Constraint("Horizontal", 19, 2, 39, 2),
    Sketcher.Constraint("Vertical", 4, 3, 6, 3),
    Sketcher.Constraint("Vertical", 5, 3, 7, 3),
    Sketcher.Constraint("Vertical", 12, 3, 13, 3),
    Sketcher.Constraint("Vertical", 14, 3, 15, 3),
    Sketcher.Constraint("Vertical", 6, 3, 20, 3),
    Sketcher.Constraint("Vertical", 7, 3, 21, 3),
    Sketcher.Constraint("Vertical", 20, 3, 22, 3),
    Sketcher.Constraint("Vertical", 21, 3, 23, 3),
    Sketcher.Constraint("Vertical", 28, 3, 30, 3),
    Sketcher.Constraint("Vertical", 29, 3, 31, 3),
    Sketcher.Constraint("Vertical", 36, 3, 37, 3),
    Sketcher.Constraint("Vertical", 30, 3, 42, 3),
    Sketcher.Constraint("Vertical", 31, 3, 43, 3),
    Sketcher.Constraint("Vertical", 42, 3, 44, 3),
    Sketcher.Constraint("Vertical", 43, 3, 45, 3),
    Sketcher.Constraint("Vertical", 3, 2, 18, 2),
    Sketcher.Constraint("Vertical", 27, 2, 38, 2),
    Sketcher.Constraint("Vertical", 26, 2, 40, 2),
    Sketcher.Constraint("Equal", 18, 25),
    Sketcher.Constraint("Equal", 40, 9),
    Sketcher.Constraint("Equal", 3, 17),
    Sketcher.Constraint("Equal", 11, 32),
    Sketcher.Constraint("Diameter", 4, 3.2),
    Sketcher.Constraint("DistanceX", 0, 2, 0, 1, 18.3),
    Sketcher.Constraint("DistanceX", -1, 1, 4, 3, 4.0),
    Sketcher.Constraint("DistanceY", 6, 3, 0, 2, 4.0),
    Sketcher.Constraint("DistanceY", 1, 2, 4, 3, 4.0),
    Sketcher.Constraint("DistanceY", 13, 3, 8, 2, 4.0),
    Sketcher.Constraint("DistanceY", 12, 3, 8, 2, 10.0),
    Sketcher.Constraint("DistanceY", 22, 3, 16, 2, 4.0),
    Sketcher.Constraint("DistanceY", 17, 2, 20, 3, 4.0),
    Sketcher.Constraint("DistanceX", 31, 3, 24, 2, 4.0),
    Sketcher.Constraint("DistanceX", 36, 3, 33, 2, 4.0),
    Sketcher.Constraint("DistanceX", 14, 3, 10, 2, 4.5),
    Sketcher.Constraint("DistanceY", 1, 2, 1, 1, 25.5),
    Sketcher.Constraint("DistanceY", -1, 1, 20, 3, 27.0),
    Sketcher.Constraint("DistanceX", -1, 1, 29, 3, 132.0),
    Sketcher.Constraint("DistanceX", -1, 1, 36, 3, 94.0),
    Sketcher.Constraint("DistanceY", -1, 1, 32, 2, 8.0),
    Sketcher.Constraint("DistanceY", 7, 3, 12, 3, 9.0),
    Sketcher.Constraint("DistanceY", 36, 3, 37, 3, 9.0),
    Sketcher.Constraint("DistanceX", -1, 1, 5, 3, 14.8),
    Sketcher.Constraint("DistanceX", -1, 1, 28, 3, 121.2),
    Sketcher.Constraint("DistanceX", 8, 2, 8, 1, 45.626),
    Sketcher.Constraint("DistanceY", -1, 1, 36, 3, 12.65),
    Sketcher.Constraint("DistanceX", 33, 1, 33, 2, 51.8333),
    Sketcher.Constraint("DistanceY", -1, 1, 4, 3, 150.224),
    Sketcher.Constraint("DistanceX", -1, 1, 14, 3, 86.313),
    Sketcher.Constraint("DistanceX", -1, 1, 12, 3, 48.5798),
])
pad2 = body.newObject("PartDesign::Pad", "Pad001")
pad2.Profile = sketch5
pad2.Length = 2.7
doc.recompute()

fillet = body.newObject("PartDesign::Fillet", "Fillet")
fillet.Base = (pad2, edges_at(pad2, [
    (29.671, 160.194, 8.25),
    (21.047, 146.949, 8.25),
    (21.047, 70.581, 8.25),
    (29.479, 56.474, 8.25),
    (115.477, 70.739, 8.25),
    (106.276, 56.474, 8.25),
    (106.084, 160.194, 8.25),
    (115.477, 146.792, 8.25),
]))
fillet.Radius = 3

# Sketch on XY plane
sketch6 = body.newObject("Sketcher::SketchObject", "Sketch005")
sketch6.AttachmentSupport = (doc.getObject("XY_Plane"), [""])
sketch6.MapMode = "FlatFace"
sketch6.AttachmentOffset = App.Placement(V(0, 0, 11), App.Rotation())
sketch6.addGeometry([
    Part.Circle(V(25.3, 34.4, 0), V(0, 0, 1), 1),  # 0
    Part.Circle(V(25.3, 46.4, 0), V(0, 0, 1), 1),  # 1
    Part.Circle(V(48.3, 34.4, 0), V(0, 0, 1), 1),  # 2
    Part.Circle(V(48.3, 46.4, 0), V(0, 0, 1), 1),  # 3
    Part.Circle(V(87.7, 34.4, 0), V(0, 0, 1), 1),  # 4
    Part.Circle(V(87.7, 46.4, 0), V(0, 0, 1), 1),  # 5
    Part.Circle(V(110.7, 34.4, 0), V(0, 0, 1), 1),  # 6
    Part.Circle(V(110.7, 46.4, 0), V(0, 0, 1), 1),  # 7
], False)
sketch6.addConstraint([
    Sketcher.Constraint("Equal", 0, 1),
    Sketcher.Constraint("Equal", 1, 2),
    Sketcher.Constraint("Equal", 2, 3),
    Sketcher.Constraint("Equal", 3, 4),
    Sketcher.Constraint("Equal", 4, 5),
    Sketcher.Constraint("Equal", 5, 6),
    Sketcher.Constraint("Equal", 6, 7),
    Sketcher.Constraint("Horizontal", 0, 3, 2, 3),
    Sketcher.Constraint("Horizontal", 1, 3, 3, 3),
    Sketcher.Constraint("Horizontal", 2, 3, 4, 3),
    Sketcher.Constraint("Horizontal", 3, 3, 5, 3),
    Sketcher.Constraint("Horizontal", 4, 3, 6, 3),
    Sketcher.Constraint("Horizontal", 5, 3, 7, 3),
    Sketcher.Constraint("Vertical", 0, 3, 1, 3),
    Sketcher.Constraint("Vertical", 2, 3, 3, 3),
    Sketcher.Constraint("Vertical", 4, 3, 5, 3),
    Sketcher.Constraint("Vertical", 6, 3, 7, 3),
    Sketcher.Constraint("Diameter", 0, 2.0),
    Sketcher.Constraint("DistanceY", 0, 3, 1, 3, 12.0),
    Sketcher.Constraint("DistanceX", 0, 3, 2, 3, 23.0),
    Sketcher.Constraint("DistanceX", 4, 3, 6, 3, 23.0),
    Sketcher.Constraint("DistanceY", -1, 1, 0, 3, 34.362),
    Sketcher.Constraint("DistanceX", -1, 1, 0, 3, 25.3008),
    Sketcher.Constraint("DistanceX", -1, 1, 4, 3, 87.6992),
])
pocket4 = body.newObject("PartDesign::Pocket", "Pocket003")
pocket4.Profile = sketch6
pocket4.Length = 10

doc.recompute()
